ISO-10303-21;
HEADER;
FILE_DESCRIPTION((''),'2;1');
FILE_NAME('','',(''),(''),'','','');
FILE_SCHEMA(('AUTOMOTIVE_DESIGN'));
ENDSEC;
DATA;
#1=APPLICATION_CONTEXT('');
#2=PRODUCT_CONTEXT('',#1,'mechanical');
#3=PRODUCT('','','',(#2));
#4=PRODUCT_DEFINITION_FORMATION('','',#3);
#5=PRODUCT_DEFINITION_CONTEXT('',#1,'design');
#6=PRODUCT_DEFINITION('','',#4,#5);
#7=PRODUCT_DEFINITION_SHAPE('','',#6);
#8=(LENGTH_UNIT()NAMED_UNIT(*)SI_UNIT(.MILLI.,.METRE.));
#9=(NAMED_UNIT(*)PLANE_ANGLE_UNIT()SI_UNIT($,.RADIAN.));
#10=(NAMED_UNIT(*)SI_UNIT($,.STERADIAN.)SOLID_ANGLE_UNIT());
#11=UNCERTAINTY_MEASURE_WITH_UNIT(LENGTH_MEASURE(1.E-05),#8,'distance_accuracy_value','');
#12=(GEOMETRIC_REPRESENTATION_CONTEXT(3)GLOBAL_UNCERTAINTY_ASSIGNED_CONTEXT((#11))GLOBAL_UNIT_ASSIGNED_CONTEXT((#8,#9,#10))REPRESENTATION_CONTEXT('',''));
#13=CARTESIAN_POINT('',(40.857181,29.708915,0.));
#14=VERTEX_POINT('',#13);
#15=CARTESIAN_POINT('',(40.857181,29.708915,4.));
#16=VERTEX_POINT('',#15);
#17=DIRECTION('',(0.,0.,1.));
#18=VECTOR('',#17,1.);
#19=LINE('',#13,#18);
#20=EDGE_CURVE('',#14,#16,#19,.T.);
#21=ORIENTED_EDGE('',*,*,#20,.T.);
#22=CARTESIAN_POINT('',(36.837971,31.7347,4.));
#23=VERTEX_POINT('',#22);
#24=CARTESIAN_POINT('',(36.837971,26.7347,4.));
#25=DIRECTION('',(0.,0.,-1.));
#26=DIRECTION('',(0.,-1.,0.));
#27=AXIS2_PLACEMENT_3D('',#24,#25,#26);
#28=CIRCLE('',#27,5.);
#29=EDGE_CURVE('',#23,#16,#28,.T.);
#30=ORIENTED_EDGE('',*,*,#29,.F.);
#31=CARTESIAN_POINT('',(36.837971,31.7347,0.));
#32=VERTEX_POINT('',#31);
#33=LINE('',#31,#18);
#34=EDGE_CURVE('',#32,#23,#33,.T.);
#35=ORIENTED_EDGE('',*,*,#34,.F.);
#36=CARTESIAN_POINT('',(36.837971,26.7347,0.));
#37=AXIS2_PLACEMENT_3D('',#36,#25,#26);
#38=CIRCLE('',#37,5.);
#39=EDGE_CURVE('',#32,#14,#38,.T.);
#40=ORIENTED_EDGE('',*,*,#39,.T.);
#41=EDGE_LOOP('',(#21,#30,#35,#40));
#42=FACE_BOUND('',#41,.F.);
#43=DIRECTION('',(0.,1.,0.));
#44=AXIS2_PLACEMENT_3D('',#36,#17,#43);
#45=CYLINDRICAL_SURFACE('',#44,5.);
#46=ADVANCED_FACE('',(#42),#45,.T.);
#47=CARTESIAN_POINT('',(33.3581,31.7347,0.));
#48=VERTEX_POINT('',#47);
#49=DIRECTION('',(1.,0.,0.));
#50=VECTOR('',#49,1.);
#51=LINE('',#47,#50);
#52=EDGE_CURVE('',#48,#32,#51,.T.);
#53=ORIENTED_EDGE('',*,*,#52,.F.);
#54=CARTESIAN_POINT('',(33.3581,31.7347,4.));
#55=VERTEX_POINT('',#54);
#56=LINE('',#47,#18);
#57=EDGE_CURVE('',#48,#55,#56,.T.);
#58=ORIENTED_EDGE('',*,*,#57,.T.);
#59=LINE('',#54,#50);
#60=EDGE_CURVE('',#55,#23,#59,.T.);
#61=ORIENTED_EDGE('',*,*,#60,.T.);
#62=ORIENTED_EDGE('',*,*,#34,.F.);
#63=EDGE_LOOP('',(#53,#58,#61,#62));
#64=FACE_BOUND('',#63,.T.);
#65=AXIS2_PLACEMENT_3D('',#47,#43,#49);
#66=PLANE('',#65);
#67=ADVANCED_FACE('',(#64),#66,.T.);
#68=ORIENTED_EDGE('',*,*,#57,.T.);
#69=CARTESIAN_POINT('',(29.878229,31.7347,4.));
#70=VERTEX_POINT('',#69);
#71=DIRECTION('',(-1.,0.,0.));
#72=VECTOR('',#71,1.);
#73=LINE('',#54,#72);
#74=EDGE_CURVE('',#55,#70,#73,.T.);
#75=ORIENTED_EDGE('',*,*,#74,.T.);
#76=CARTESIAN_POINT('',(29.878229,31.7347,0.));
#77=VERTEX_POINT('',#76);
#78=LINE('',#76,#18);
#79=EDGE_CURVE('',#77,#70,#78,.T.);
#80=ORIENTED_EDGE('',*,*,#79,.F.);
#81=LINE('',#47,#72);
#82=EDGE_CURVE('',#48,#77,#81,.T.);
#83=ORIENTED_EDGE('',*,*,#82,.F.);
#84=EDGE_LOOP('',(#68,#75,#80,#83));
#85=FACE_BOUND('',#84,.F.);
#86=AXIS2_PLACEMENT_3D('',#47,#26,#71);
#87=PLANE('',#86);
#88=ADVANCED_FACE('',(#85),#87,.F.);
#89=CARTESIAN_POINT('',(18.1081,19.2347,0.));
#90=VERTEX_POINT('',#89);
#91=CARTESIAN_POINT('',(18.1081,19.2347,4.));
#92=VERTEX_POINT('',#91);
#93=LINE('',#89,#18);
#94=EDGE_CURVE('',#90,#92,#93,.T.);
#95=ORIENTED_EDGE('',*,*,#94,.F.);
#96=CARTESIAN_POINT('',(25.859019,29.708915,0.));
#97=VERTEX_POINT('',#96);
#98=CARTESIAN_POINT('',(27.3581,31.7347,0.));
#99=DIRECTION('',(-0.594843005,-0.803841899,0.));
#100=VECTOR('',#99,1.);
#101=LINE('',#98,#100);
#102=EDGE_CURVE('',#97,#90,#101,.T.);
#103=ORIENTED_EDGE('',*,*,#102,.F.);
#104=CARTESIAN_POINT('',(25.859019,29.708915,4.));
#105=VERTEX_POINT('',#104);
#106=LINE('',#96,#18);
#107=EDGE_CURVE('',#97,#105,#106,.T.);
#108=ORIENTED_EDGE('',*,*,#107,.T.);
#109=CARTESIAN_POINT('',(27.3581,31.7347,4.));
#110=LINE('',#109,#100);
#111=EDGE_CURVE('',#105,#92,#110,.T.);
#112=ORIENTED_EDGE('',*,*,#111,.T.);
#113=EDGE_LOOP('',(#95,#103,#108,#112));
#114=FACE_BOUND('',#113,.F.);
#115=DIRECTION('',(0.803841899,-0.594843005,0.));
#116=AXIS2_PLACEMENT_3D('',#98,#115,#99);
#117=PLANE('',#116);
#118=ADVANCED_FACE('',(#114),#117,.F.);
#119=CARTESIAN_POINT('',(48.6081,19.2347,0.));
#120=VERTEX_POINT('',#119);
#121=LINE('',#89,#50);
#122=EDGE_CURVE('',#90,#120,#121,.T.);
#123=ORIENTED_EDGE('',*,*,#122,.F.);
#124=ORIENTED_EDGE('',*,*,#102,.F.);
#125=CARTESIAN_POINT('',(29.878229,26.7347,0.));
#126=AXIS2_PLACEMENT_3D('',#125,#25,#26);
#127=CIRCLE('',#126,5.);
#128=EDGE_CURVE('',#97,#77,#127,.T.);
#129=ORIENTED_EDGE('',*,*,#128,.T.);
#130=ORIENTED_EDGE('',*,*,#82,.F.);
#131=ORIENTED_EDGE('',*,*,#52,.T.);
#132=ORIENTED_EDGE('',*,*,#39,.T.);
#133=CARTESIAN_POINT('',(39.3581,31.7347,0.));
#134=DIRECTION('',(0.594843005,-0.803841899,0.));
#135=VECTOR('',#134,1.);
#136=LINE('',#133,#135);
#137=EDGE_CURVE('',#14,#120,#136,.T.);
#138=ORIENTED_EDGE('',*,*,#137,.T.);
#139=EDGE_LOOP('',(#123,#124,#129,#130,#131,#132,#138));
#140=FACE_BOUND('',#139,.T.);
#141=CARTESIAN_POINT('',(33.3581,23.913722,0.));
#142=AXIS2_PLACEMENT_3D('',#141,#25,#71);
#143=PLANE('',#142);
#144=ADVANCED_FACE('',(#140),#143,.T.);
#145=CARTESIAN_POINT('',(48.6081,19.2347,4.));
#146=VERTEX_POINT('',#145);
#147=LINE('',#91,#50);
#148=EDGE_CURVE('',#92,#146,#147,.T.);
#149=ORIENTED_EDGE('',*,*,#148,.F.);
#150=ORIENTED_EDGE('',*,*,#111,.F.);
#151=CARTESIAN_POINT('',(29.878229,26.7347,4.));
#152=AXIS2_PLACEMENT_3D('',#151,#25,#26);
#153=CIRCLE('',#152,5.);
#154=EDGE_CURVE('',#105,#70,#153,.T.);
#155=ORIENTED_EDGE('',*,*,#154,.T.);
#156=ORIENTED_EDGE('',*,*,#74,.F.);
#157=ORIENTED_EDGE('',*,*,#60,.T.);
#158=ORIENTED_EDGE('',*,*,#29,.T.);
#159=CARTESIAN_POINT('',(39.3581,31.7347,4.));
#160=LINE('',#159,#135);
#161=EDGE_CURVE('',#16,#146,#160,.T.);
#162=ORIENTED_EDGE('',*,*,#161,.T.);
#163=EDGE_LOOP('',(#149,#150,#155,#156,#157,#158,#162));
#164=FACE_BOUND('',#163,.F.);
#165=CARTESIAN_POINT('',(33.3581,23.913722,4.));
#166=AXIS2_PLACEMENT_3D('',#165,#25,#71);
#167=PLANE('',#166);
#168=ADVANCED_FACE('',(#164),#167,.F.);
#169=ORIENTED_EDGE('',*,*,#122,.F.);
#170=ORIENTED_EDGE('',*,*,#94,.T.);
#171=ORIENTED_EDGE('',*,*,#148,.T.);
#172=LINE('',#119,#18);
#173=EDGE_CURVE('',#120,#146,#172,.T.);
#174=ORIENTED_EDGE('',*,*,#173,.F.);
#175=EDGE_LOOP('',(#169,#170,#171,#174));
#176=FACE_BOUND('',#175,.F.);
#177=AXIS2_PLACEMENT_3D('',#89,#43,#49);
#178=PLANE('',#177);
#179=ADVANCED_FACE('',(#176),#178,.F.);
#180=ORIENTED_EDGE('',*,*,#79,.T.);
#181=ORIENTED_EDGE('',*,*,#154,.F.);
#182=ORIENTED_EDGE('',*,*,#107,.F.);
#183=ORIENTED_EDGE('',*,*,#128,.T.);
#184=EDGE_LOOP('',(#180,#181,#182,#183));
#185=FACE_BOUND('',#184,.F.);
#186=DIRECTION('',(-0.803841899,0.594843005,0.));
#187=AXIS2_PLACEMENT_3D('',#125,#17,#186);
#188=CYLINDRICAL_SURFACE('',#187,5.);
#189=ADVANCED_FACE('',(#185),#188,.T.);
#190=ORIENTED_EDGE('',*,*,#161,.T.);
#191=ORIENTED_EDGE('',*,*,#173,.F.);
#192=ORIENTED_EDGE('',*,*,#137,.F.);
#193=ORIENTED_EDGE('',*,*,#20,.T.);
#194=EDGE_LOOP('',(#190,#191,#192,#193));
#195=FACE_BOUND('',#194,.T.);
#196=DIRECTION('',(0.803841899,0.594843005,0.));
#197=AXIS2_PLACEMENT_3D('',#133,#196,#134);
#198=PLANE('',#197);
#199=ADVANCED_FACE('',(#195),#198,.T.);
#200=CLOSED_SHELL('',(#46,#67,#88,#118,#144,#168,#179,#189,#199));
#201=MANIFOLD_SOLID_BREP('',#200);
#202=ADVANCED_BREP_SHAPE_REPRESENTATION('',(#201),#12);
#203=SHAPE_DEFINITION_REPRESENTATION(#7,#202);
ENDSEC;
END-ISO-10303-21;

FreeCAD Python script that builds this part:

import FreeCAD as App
import Part
import Sketcher

V = App.Vector


def edges_at(feature, points):
    """Names of the edges that pass closest to the given points."""
    edges = feature.Shape.Edges
    near = lambda p: min(range(len(edges)), key=lambda i: edges[i].distToShape(Part.Vertex(*p))[0])
    return sorted({f"Edge{near(p) + 1}" for p in points})


def add_polygon(sketch, points):
    """Adds a closed chain of lines whose ends are joined by coincident constraints."""
    first, n = sketch.GeometryCount, len(points)
    for a, b in zip(points, points[1:] + points[:1]):
        sketch.addGeometry(Part.LineSegment(App.Vector(*a, 0), App.Vector(*b, 0)), False)
    for i in range(n):
        sketch.addConstraint(Sketcher.Constraint("Coincident", first + i, 2, first + (i + 1) % n, 1))

doc = App.newDocument("Part")
body = doc.addObject("PartDesign::Body", "Body")

# Sketch on XY plane
sketch1 = body.newObject("Sketcher::SketchObject", "Sketch")
sketch1.AttachmentSupport = (doc.getObject("XY_Plane"), [""])
sketch1.MapMode = "FlatFace"
add_polygon(sketch1, [(39.3581, 31.7347), (27.3581, 31.7347), (18.1081, 19.2347), (48.6081, 19.2347)])  # lines 0-3
sketch1.addConstraint(Sketcher.Constraint("Horizontal", 0))
sketch1.addConstraint(Sketcher.Constraint("Horizontal", 2))
sketch1.addConstraint(Sketcher.Constraint("Equal", 1, 3))
sketch1.addConstraint(Sketcher.Constraint("DistanceX", 0, 2, 0, 1, 12.0))
sketch1.addConstraint(Sketcher.Constraint("DistanceX", 2, 1, 2, 2, 30.5))
sketch1.addConstraint(Sketcher.Constraint("DistanceY", 1, 2, 0, 2, 12.5))
sketch1.addConstraint(Sketcher.Constraint("DistanceX", -1, 1, 0, 2, 27.358))
sketch1.addConstraint(Sketcher.Constraint("DistanceY", -1, 1, 0, 2, 31.7347))
pad1 = body.newObject("PartDesign::Pad", "Pad")
pad1.Profile = sketch1
pad1.Length = 4
doc.recompute()

fillet = body.newObject("PartDesign::Fillet", "Fillet")
fillet.Base = (pad1, edges_at(pad1, [(39.358, 31.735, 2), (27.358, 31.735, 2)]))
fillet.Radius = 5

doc.recompute()
